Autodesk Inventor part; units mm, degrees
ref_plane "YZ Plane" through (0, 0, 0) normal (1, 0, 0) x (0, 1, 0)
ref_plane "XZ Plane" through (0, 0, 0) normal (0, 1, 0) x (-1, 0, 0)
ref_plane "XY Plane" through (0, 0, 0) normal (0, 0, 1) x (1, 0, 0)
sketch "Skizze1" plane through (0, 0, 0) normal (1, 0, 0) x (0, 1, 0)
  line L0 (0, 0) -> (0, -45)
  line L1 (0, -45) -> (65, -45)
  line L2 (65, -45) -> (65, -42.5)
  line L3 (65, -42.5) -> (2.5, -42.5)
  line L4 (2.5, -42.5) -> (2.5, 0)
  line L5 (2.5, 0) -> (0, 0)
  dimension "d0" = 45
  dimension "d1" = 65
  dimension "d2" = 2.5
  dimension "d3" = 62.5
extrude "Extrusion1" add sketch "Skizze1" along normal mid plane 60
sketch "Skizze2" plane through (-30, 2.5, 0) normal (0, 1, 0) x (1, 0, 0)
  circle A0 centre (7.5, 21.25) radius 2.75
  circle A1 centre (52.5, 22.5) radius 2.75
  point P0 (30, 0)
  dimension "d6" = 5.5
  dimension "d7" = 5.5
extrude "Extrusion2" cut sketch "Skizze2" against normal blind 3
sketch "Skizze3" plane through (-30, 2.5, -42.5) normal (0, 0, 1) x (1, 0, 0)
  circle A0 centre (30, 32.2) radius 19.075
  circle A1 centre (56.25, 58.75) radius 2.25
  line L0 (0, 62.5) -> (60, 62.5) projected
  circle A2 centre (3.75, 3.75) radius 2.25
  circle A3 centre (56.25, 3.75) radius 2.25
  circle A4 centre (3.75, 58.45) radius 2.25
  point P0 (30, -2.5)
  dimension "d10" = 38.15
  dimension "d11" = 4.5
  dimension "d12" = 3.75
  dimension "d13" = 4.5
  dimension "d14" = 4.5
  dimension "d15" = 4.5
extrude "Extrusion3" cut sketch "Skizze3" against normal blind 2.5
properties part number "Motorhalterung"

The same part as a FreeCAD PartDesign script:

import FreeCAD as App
import Part
import Sketcher
from FreeCAD import Vector
Q = App.Units.Quantity

doc = App.newDocument("Part")
body = doc.addObject("PartDesign::Body", "Body")

sketch1 = body.newObject("Sketcher::SketchObject", "Sketch")
sketch1.AttachmentSupport = (doc.getObject("YZ_Plane"), [""])
sketch1.MapMode = "FlatFace"
sketch1.addGeometry([
    Part.LineSegment(Vector(2.5, 0, 0), Vector(0, 0, 0)),
    Part.LineSegment(Vector(0, 0, 0), Vector(0, -45, 0)),
    Part.LineSegment(Vector(0, -45, 0), Vector(65, -45, 0)),
    Part.LineSegment(Vector(65, -45, 0), Vector(65, -42.5, 0)),
    Part.LineSegment(Vector(65, -42.5, 0), Vector(2.5, -42.5, 0)),
    Part.LineSegment(Vector(2.5, -42.5, 0), Vector(2.5, 0, 0)),
], False)
sketch1.addConstraint([
    Sketcher.Constraint("Coincident", 0, 2, 1, 1),
    Sketcher.Constraint("Coincident", 1, 2, 2, 1),
    Sketcher.Constraint("Coincident", 2, 2, 3, 1),
    Sketcher.Constraint("Coincident", 3, 2, 4, 1),
    Sketcher.Constraint("Coincident", 4, 2, 5, 1),
    Sketcher.Constraint("Coincident", 5, 2, 0, 1),
    Sketcher.Constraint("Horizontal", 0),
    Sketcher.Constraint("Vertical", 1),
    Sketcher.Constraint("Horizontal", 2),
    Sketcher.Constraint("Vertical", 3),
    Sketcher.Constraint("Horizontal", 4),
    Sketcher.Constraint("Vertical", 5),
    Sketcher.Constraint("Coincident", 0, 2, -1, 1),
    Sketcher.Constraint("Equal", 0, 3),
    Sketcher.Constraint("DistanceX", 2, 1, 2, 2, Q("65 mm")),
    Sketcher.Constraint("DistanceY", 1, 2, 1, 1, Q("45 mm")),
    Sketcher.Constraint("DistanceX", 0, 2, 0, 1, Q("2.5 mm")),
])
pad1 = body.newObject("PartDesign::Pad", "Pad")
pad1.Profile = sketch1
pad1.Length = 60
pad1.Midplane = True

sketch2 = body.newObject("Sketcher::SketchObject", "Sketch001")
sketch2.AttachmentSupport = (doc.getObject("XZ_Plane"), [""])
sketch2.MapMode = "FlatFace"
sketch2.AttachmentOffset = App.Placement(Vector(0, 0, -2.5), App.Rotation())
sketch2.addGeometry([
    Part.Circle(Vector(-22.5, -21.2, 0), Vector(0, 0, 1), 2.8),
    Part.Circle(Vector(22.5, -22.5, 0), Vector(0, 0, 1), 2.8),
], False)
sketch2.addConstraint([
    Sketcher.Constraint("Equal", 0, 1),
    Sketcher.Constraint("Diameter", 0, Q("5.5 mm")),
    Sketcher.Constraint("DistanceX", 0, 3, 1, 3, Q("45 mm")),
    Sketcher.Constraint("DistanceX", 0, 3, -1, 1, Q("22.5 mm")),
    Sketcher.Constraint("DistanceY", 1, 3, -1, 1, Q("22.5 mm")),
    Sketcher.Constraint("DistanceY", 0, 3, -1, 1, Q("21.25 mm")),
])
pocket1 = body.newObject("PartDesign::Pocket", "Pocket")
pocket1.Profile = sketch2
pocket1.Length = 3
pocket1.Reversed = True

sketch3 = body.newObject("Sketcher::SketchObject", "Sketch002")
sketch3.AttachmentSupport = (doc.getObject("XY_Plane"), [""])
sketch3.MapMode = "FlatFace"
sketch3.AttachmentOffset = App.Placement(Vector(0, 0, -42.5), App.Rotation())
sketch3.addGeometry([
    Part.Circle(Vector(0, 34.7, 0), Vector(0, 0, 1), 19.1),
    Part.Circle(Vector(26.2, 61.2, 0), Vector(0, 0, 1), 2.2),
    Part.Circle(Vector(-26.2, 6.2, 0), Vector(0, 0, 1), 2.2),
    Part.Circle(Vector(26.2, 6.2, 0), Vector(0, 0, 1), 2.2),
    Part.Circle(Vector(-26.2, 61, 0), Vector(0, 0, 1), 2.2),
], False)
sketch3.addConstraint([
    Sketcher.Constraint("Equal", 1, 2),
    Sketcher.Constraint("Equal", 2, 3),
    Sketcher.Constraint("Equal", 3, 4),
    Sketcher.Constraint("Symmetric", 2, 3, 3, 3, -2),
    Sketcher.Constraint("PointOnObject", 0, 3, -2),
    Sketcher.Constraint("Vertical", 1, 3, 3, 3),
    Sketcher.Constraint("Vertical", 2, 3, 4, 3),
    Sketcher.Constraint("Diameter", 1, Q("4.5 mm")),
    Sketcher.Constraint("Diameter", 0, Q("38.15 mm")),
    Sketcher.Constraint("DistanceY", 2, 3, 1, 3, Q("55 mm")),
    Sketcher.Constraint("DistanceY", -1, 1, 0, 3, Q("34.7 mm")),
    Sketcher.Constraint("DistanceX", 2, 3, 1, 3, Q("52.5 mm")),
    Sketcher.Constraint("DistanceY", 4, 3, 1, 3, Q("0.3 mm")),
    Sketcher.Constraint("DistanceY", -1, 1, 1, 3, Q("61.25 mm")),
])
pocket2 = body.newObject("PartDesign::Pocket", "Pocket001")
pocket2.Profile = sketch3
pocket2.Length = 2.5

doc.recompute()
